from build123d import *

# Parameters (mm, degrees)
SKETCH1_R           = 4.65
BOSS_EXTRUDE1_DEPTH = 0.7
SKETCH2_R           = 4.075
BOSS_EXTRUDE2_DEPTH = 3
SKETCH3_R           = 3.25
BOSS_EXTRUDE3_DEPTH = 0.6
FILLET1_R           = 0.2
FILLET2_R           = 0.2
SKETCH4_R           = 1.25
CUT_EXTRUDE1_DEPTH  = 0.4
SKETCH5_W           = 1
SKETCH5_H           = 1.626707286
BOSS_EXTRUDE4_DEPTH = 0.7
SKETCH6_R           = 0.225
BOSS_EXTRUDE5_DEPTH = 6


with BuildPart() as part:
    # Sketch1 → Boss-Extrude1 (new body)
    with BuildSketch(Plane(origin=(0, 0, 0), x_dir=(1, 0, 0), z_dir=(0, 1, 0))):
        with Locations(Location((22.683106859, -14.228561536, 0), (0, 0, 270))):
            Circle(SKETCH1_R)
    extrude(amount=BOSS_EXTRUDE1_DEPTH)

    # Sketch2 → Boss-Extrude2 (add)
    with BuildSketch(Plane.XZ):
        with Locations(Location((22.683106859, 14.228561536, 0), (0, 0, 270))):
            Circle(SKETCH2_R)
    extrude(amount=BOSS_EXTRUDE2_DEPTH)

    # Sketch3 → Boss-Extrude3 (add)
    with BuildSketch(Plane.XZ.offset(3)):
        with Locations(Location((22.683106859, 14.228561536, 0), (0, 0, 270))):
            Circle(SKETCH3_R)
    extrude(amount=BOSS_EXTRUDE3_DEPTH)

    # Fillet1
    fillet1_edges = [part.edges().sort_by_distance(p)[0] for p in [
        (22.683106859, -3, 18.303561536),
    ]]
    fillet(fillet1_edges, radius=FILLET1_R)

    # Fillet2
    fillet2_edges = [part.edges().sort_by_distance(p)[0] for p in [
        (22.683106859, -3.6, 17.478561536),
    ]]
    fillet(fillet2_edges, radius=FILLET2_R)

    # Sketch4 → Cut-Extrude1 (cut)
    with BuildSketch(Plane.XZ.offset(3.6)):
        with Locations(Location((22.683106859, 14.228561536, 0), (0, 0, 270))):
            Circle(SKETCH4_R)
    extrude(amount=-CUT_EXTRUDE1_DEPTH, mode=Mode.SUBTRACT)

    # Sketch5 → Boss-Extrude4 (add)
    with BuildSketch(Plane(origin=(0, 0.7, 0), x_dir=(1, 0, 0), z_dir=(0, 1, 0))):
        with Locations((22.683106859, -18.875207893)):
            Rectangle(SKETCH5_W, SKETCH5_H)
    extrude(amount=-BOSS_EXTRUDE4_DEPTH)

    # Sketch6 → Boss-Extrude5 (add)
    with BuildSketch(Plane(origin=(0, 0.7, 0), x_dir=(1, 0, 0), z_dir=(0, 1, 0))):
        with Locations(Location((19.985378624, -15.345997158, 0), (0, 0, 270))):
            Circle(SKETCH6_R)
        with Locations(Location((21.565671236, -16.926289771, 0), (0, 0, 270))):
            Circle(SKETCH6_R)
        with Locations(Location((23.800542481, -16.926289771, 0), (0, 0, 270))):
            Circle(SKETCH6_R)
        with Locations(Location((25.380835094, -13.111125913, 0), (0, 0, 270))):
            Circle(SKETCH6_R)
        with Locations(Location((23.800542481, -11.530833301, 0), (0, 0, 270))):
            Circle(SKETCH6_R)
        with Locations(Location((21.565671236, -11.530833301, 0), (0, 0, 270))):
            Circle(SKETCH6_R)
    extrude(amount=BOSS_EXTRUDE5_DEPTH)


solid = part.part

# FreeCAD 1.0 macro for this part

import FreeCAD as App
import Part
import Sketcher
from FreeCAD import Vector
Q = App.Units.Quantity


def edges_at(feature, points):
    """Names of the edges that pass closest to the given points."""
    edges = feature.Shape.Edges
    near = lambda p: min(range(len(edges)), key=lambda i: edges[i].distToShape(Part.Vertex(*p))[0])
    return sorted({f"Edge{near(p) + 1}" for p in points})


def add_polygon(sketch, points):
    """Adds a closed chain of lines whose ends are joined by coincident constraints."""
    first, n = sketch.GeometryCount, len(points)
    for a, b in zip(points, points[1:] + points[:1]):
        sketch.addGeometry(Part.LineSegment(App.Vector(*a, 0), App.Vector(*b, 0)), False)
    for i in range(n):
        sketch.addConstraint(Sketcher.Constraint("Coincident", first + i, 2, first + (i + 1) % n, 1))

doc = App.newDocument("Part")
body = doc.addObject("PartDesign::Body", "Body")

# Sketch on XZ plane
sketch1 = doc.addObject("Sketcher::SketchObject", "Sketch")
body.addObject(sketch1)
sketch1.AttachmentSupport = (doc.XZ_Plane, [""])
sketch1.MapMode = "FlatFace"
sketch1.addGeometry(Part.Circle(Vector(22.683107, 14.228562, 0), Vector(0, 0, 1), 4.65), False)
sketch1.addConstraint(Sketcher.Constraint("Diameter", 0, Q("9.3 mm")))
sketch1.addConstraint(Sketcher.Constraint("DistanceY", -1, 1, 0, 3, Q("14.228562 mm")))
sketch1.addConstraint(Sketcher.Constraint("DistanceX", -1, 1, 0, 3, Q("22.683107 mm")))
pad1 = doc.addObject("PartDesign::Pad", "Pad")
body.addObject(pad1)
pad1.Profile = sketch1
pad1.Length = 0.7
pad1.Reversed = True

# Sketch on XZ plane
sketch2 = doc.addObject("Sketcher::SketchObject", "Sketch001")
body.addObject(sketch2)
sketch2.AttachmentSupport = (doc.XZ_Plane, [""])
sketch2.MapMode = "FlatFace"
sketch2.addGeometry(Part.Circle(Vector(22.683107, 14.228562, 0), Vector(0, 0, 1), 4.075), False)
sketch2.addConstraint(Sketcher.Constraint("Diameter", 0, Q("8.15 mm")))
sketch2.addConstraint(Sketcher.Constraint("DistanceY", -1, 1, 0, 3, Q("14.228562 mm")))
sketch2.addConstraint(Sketcher.Constraint("DistanceX", -1, 1, 0, 3, Q("22.683107 mm")))
pad2 = doc.addObject("PartDesign::Pad", "Pad001")
body.addObject(pad2)
pad2.Profile = sketch2
pad2.Length = 3

# Sketch on XZ plane
sketch3 = doc.addObject("Sketcher::SketchObject", "Sketch002")
body.addObject(sketch3)
sketch3.AttachmentSupport = (doc.XZ_Plane, [""])
sketch3.MapMode = "FlatFace"
sketch3.AttachmentOffset = App.Placement(Vector(0, 0, 3), App.Rotation())
sketch3.addGeometry(Part.Circle(Vector(22.683107, 14.228562, 0), Vector(0, 0, 1), 3.25), False)
sketch3.addConstraint(Sketcher.Constraint("Diameter", 0, Q("6.5 mm")))
sketch3.addConstraint(Sketcher.Constraint("DistanceY", -1, 1, 0, 3, Q("14.228562 mm")))
sketch3.addConstraint(Sketcher.Constraint("DistanceX", -1, 1, 0, 3, Q("22.683107 mm")))
pad3 = doc.addObject("PartDesign::Pad", "Pad002")
body.addObject(pad3)
pad3.Profile = sketch3
pad3.Length = 0.6
doc.recompute()

fillet = doc.addObject("PartDesign::Fillet", "Fillet")
body.addObject(fillet)
fillet.Base = (pad3, edges_at(pad3, [(22.683, -3, 18.304)]))
fillet.Radius = 0.2
doc.recompute()

fillet2 = doc.addObject("PartDesign::Fillet", "Fillet001")
body.addObject(fillet2)
fillet2.Base = (fillet, edges_at(fillet, [(22.683, -3.6, 17.479)]))
fillet2.Radius = 0.2

# Sketch on XZ plane
sketch4 = doc.addObject("Sketcher::SketchObject", "Sketch003")
body.addObject(sketch4)
sketch4.AttachmentSupport = (doc.XZ_Plane, [""])
sketch4.MapMode = "FlatFace"
sketch4.AttachmentOffset = App.Placement(Vector(0, 0, 3.6), App.Rotation())
sketch4.addGeometry(Part.Circle(Vector(22.683107, 14.228562, 0), Vector(0, 0, 1), 1.25), False)
sketch4.addConstraint(Sketcher.Constraint("Diameter", 0, Q("2.5 mm")))
sketch4.addConstraint(Sketcher.Constraint("DistanceY", -1, 1, 0, 3, Q("14.228562 mm")))
sketch4.addConstraint(Sketcher.Constraint("DistanceX", -1, 1, 0, 3, Q("22.683107 mm")))
pocket1 = doc.addObject("PartDesign::Pocket", "Pocket")
body.addObject(pocket1)
pocket1.Profile = sketch4
pocket1.Length = 0.4

# Sketch on XZ plane
sketch5 = doc.addObject("Sketcher::SketchObject", "Sketch004")
body.addObject(sketch5)
sketch5.AttachmentSupport = (doc.XZ_Plane, [""])
sketch5.MapMode = "FlatFace"
sketch5.AttachmentOffset = App.Placement(Vector(0, 0, -0.7), App.Rotation())
add_polygon(sketch5, [(22.183107, 18.061854), (22.183107, 19.688562), (23.183107, 19.688562), (23.183107, 18.061854)])  # lines 0-3
sketch5.addConstraint(Sketcher.Constraint("Vertical", 0))
sketch5.addConstraint(Sketcher.Constraint("Horizontal", 1))
sketch5.addConstraint(Sketcher.Constraint("Vertical", 2))
sketch5.addConstraint(Sketcher.Constraint("Horizontal", 3))
sketch5.addConstraint(Sketcher.Constraint("DistanceX", 1, 1, 1, 2, Q("1 mm")))
sketch5.addConstraint(Sketcher.Constraint("DistanceY", 0, 1, 0, 2, Q("1.626707 mm")))
sketch5.addConstraint(Sketcher.Constraint("DistanceY", -1, 1, 0, 2, Q("19.688562 mm")))
sketch5.addConstraint(Sketcher.Constraint("DistanceX", -1, 1, 0, 2, Q("22.183107 mm")))
pad4 = doc.addObject("PartDesign::Pad", "Pad003")
body.addObject(pad4)
pad4.Profile = sketch5
pad4.Length = 0.7

# Sketch on XZ plane
sketch6 = doc.addObject("Sketcher::SketchObject", "Sketch005")
body.addObject(sketch6)
sketch6.AttachmentSupport = (doc.XZ_Plane, [""])
sketch6.MapMode = "FlatFace"
sketch6.AttachmentOffset = App.Placement(Vector(0, 0, -0.7), App.Rotation())
sketch6.addGeometry(Part.Circle(Vector(19.985379, 15.345997, 0), Vector(0, 0, 1), 0.225), False)
sketch6.addGeometry(Part.Circle(Vector(21.565671, 16.92629, 0), Vector(0, 0, 1), 0.225), False)
sketch6.addGeometry(Part.Circle(Vector(23.800542, 16.92629, 0), Vector(0, 0, 1), 0.225), False)
sketch6.addGeometry(Part.Circle(Vector(25.380835, 13.111126, 0), Vector(0, 0, 1), 0.225), False)
sketch6.addGeometry(Part.Circle(Vector(23.800542, 11.530833, 0), Vector(0, 0, 1), 0.225), False)
sketch6.addGeometry(Part.Circle(Vector(21.565671, 11.530833, 0), Vector(0, 0, 1), 0.225), False)
sketch6.addConstraint(Sketcher.Constraint("Equal", 0, 1))
sketch6.addConstraint(Sketcher.Constraint("Equal", 1, 2))
sketch6.addConstraint(Sketcher.Constraint("Equal", 2, 3))
sketch6.addConstraint(Sketcher.Constraint("Equal", 3, 4))
sketch6.addConstraint(Sketcher.Constraint("Equal", 4, 5))
sketch6.addConstraint(Sketcher.Constraint("Horizontal", 1, 3, 2, 3))
sketch6.addConstraint(Sketcher.Constraint("Horizontal", 4, 3, 5, 3))
sketch6.addConstraint(Sketcher.Constraint("Vertical", 2, 3, 4, 3))
sketch6.addConstraint(Sketcher.Constraint("Vertical", 1, 3, 5, 3))
sketch6.addConstraint(Sketcher.Constraint("Diameter", 0, Q("0.45 mm")))
sketch6.addConstraint(Sketcher.Constraint("DistanceX", -1, 1, 0, 3, Q("19.985379 mm")))
sketch6.addConstraint(Sketcher.Constraint("DistanceX", -1, 1, 1, 3, Q("21.565671 mm")))
sketch6.addConstraint(Sketcher.Constraint("DistanceY", -1, 1, 1, 3, Q("16.92629 mm")))
sketch6.addConstraint(Sketcher.Constraint("DistanceX", 1, 3, 2, 3, Q("2.234871 mm")))
sketch6.addConstraint(Sketcher.Constraint("DistanceY", 3, 3, 0, 3, Q("2.234871 mm")))
sketch6.addConstraint(Sketcher.Constraint("DistanceY", -1, 1, 0, 3, Q("15.345997 mm")))
sketch6.addConstraint(Sketcher.Constraint("DistanceX", -1, 1, 3, 3, Q("25.380835 mm")))
sketch6.addConstraint(Sketcher.Constraint("DistanceY", -1, 1, 4, 3, Q("11.530833 mm")))
pad5 = doc.addObject("PartDesign::Pad", "Pad004")
body.addObject(pad5)
pad5.Profile = sketch6
pad5.Length = 6
pad5.Reversed = True

doc.recompute()
